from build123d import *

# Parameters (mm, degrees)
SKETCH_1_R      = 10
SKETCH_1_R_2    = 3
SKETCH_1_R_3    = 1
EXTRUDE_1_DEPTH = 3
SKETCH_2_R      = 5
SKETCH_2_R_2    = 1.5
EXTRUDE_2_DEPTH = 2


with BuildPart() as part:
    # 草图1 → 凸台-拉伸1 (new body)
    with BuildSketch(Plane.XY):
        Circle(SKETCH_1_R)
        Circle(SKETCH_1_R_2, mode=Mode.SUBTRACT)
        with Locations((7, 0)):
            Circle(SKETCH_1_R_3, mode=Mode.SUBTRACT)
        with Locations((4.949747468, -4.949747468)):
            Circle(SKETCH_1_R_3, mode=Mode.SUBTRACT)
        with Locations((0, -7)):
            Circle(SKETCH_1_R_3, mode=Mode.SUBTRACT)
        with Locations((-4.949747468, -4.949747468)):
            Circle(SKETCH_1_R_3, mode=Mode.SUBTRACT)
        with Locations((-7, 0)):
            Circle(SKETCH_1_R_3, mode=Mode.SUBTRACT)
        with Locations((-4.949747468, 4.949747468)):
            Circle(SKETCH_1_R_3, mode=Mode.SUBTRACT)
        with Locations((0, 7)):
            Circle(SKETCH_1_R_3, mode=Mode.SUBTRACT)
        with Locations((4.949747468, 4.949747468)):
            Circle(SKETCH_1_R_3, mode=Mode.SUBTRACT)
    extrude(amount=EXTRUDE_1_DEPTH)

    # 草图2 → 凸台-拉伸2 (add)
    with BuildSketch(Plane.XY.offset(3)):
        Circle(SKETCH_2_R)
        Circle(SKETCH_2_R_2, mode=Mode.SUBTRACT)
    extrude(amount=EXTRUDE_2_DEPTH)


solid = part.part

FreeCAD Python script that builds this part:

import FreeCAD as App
import Part
import Sketcher
Q = App.Units.Quantity

doc = App.newDocument("Part")
body = doc.addObject("PartDesign::Body", "Body")

# Sketch on XY plane
sketch1 = body.newObject("Sketcher::SketchObject", "Sketch")
sketch1.AttachmentSupport = (doc.getObject("XY_Plane"), [""])
sketch1.MapMode = "FlatFace"
sketch1.addGeometry(Part.Circle(App.Vector(0, 0, 0), App.Vector(0, 0, 1), 10), False)
sketch1.addGeometry(Part.Circle(App.Vector(-4.9, -4.9, 0), App.Vector(0, 0, 1), 1), False)
sketch1.addGeometry(Part.Circle(App.Vector(-7, 0, 0), App.Vector(0, 0, 1), 1), False)
sketch1.addGeometry(Part.Circle(App.Vector(0, -7, 0), App.Vector(0, 0, 1), 1), False)
sketch1.addGeometry(Part.Circle(App.Vector(4.9, -4.9, 0), App.Vector(0, 0, 1), 1), False)
sketch1.addGeometry(Part.Circle(App.Vector(0, 0, 0), App.Vector(0, 0, 1), 3), False)
sketch1.addGeometry(Part.Circle(App.Vector(7, 0, 0), App.Vector(0, 0, 1), 1), False)
sketch1.addGeometry(Part.Circle(App.Vector(-4.9, 4.9, 0), App.Vector(0, 0, 1), 1), False)
sketch1.addGeometry(Part.Circle(App.Vector(0, 7, 0), App.Vector(0, 0, 1), 1), False)
sketch1.addGeometry(Part.Circle(App.Vector(4.9, 4.9, 0), App.Vector(0, 0, 1), 1), False)
sketch1.addConstraint(Sketcher.Constraint("Coincident", 0, 3, -1, 1))
sketch1.addConstraint(Sketcher.Constraint("Coincident", 5, 3, -1, 1))
sketch1.addConstraint(Sketcher.Constraint("Equal", 1, 2))
sketch1.addConstraint(Sketcher.Constraint("Equal", 2, 3))
sketch1.addConstraint(Sketcher.Constraint("Equal", 3, 4))
sketch1.addConstraint(Sketcher.Constraint("Equal", 4, 6))
sketch1.addConstraint(Sketcher.Constraint("Equal", 6, 7))
sketch1.addConstraint(Sketcher.Constraint("Equal", 7, 8))
sketch1.addConstraint(Sketcher.Constraint("Equal", 8, 9))
sketch1.addConstraint(Sketcher.Constraint("Symmetric", 2, 3, 6, 3, -1, 1))
sketch1.addConstraint(Sketcher.Constraint("Symmetric", 4, 3, 7, 3, -1, 1))
sketch1.addConstraint(Sketcher.Constraint("Symmetric", 3, 3, 8, 3, -1, 1))
sketch1.addConstraint(Sketcher.Constraint("Symmetric", 1, 3, 9, 3, -1, 1))
sketch1.addConstraint(Sketcher.Constraint("Symmetric", 1, 3, 4, 3, -2))
sketch1.addConstraint(Sketcher.Constraint("PointOnObject", 2, 3, -1))
sketch1.addConstraint(Sketcher.Constraint("PointOnObject", 3, 3, -2))
sketch1.addConstraint(Sketcher.Constraint("Diameter", 0, Q("20 mm")))
sketch1.addConstraint(Sketcher.Constraint("Diameter", 1, Q("2 mm")))
sketch1.addConstraint(Sketcher.Constraint("Diameter", 5, Q("6 mm")))
sketch1.addConstraint(Sketcher.Constraint("DistanceX", 2, 3, -1, 1, Q("7 mm")))
sketch1.addConstraint(Sketcher.Constraint("DistanceY", 3, 3, -1, 1, Q("7 mm")))
sketch1.addConstraint(Sketcher.Constraint("DistanceX", 1, 3, -1, 1, Q("4.949747 mm")))
sketch1.addConstraint(Sketcher.Constraint("DistanceY", 1, 3, -1, 1, Q("4.949747 mm")))
pad1 = body.newObject("PartDesign::Pad", "Pad")
pad1.Profile = sketch1
pad1.Length = 3

# Sketch on XY plane
sketch2 = body.newObject("Sketcher::SketchObject", "Sketch001")
sketch2.AttachmentSupport = (doc.getObject("XY_Plane"), [""])
sketch2.MapMode = "FlatFace"
sketch2.AttachmentOffset = App.Placement(App.Vector(0, 0, 3), App.Rotation())
sketch2.addGeometry(Part.Circle(App.Vector(0, 0, 0), App.Vector(0, 0, 1), 5), False)
sketch2.addGeometry(Part.Circle(App.Vector(0, 0, 0), App.Vector(0, 0, 1), 1.5), False)
sketch2.addConstraint(Sketcher.Constraint("Coincident", 0, 3, -1, 1))
sketch2.addConstraint(Sketcher.Constraint("Coincident", 1, 3, -1, 1))
sketch2.addConstraint(Sketcher.Constraint("Diameter", 0, Q("10 mm")))
sketch2.addConstraint(Sketcher.Constraint("Diameter", 1, Q("3 mm")))
pad2 = body.newObject("PartDesign::Pad", "Pad001")
pad2.Profile = sketch2
pad2.Length = 2

doc.recompute()
